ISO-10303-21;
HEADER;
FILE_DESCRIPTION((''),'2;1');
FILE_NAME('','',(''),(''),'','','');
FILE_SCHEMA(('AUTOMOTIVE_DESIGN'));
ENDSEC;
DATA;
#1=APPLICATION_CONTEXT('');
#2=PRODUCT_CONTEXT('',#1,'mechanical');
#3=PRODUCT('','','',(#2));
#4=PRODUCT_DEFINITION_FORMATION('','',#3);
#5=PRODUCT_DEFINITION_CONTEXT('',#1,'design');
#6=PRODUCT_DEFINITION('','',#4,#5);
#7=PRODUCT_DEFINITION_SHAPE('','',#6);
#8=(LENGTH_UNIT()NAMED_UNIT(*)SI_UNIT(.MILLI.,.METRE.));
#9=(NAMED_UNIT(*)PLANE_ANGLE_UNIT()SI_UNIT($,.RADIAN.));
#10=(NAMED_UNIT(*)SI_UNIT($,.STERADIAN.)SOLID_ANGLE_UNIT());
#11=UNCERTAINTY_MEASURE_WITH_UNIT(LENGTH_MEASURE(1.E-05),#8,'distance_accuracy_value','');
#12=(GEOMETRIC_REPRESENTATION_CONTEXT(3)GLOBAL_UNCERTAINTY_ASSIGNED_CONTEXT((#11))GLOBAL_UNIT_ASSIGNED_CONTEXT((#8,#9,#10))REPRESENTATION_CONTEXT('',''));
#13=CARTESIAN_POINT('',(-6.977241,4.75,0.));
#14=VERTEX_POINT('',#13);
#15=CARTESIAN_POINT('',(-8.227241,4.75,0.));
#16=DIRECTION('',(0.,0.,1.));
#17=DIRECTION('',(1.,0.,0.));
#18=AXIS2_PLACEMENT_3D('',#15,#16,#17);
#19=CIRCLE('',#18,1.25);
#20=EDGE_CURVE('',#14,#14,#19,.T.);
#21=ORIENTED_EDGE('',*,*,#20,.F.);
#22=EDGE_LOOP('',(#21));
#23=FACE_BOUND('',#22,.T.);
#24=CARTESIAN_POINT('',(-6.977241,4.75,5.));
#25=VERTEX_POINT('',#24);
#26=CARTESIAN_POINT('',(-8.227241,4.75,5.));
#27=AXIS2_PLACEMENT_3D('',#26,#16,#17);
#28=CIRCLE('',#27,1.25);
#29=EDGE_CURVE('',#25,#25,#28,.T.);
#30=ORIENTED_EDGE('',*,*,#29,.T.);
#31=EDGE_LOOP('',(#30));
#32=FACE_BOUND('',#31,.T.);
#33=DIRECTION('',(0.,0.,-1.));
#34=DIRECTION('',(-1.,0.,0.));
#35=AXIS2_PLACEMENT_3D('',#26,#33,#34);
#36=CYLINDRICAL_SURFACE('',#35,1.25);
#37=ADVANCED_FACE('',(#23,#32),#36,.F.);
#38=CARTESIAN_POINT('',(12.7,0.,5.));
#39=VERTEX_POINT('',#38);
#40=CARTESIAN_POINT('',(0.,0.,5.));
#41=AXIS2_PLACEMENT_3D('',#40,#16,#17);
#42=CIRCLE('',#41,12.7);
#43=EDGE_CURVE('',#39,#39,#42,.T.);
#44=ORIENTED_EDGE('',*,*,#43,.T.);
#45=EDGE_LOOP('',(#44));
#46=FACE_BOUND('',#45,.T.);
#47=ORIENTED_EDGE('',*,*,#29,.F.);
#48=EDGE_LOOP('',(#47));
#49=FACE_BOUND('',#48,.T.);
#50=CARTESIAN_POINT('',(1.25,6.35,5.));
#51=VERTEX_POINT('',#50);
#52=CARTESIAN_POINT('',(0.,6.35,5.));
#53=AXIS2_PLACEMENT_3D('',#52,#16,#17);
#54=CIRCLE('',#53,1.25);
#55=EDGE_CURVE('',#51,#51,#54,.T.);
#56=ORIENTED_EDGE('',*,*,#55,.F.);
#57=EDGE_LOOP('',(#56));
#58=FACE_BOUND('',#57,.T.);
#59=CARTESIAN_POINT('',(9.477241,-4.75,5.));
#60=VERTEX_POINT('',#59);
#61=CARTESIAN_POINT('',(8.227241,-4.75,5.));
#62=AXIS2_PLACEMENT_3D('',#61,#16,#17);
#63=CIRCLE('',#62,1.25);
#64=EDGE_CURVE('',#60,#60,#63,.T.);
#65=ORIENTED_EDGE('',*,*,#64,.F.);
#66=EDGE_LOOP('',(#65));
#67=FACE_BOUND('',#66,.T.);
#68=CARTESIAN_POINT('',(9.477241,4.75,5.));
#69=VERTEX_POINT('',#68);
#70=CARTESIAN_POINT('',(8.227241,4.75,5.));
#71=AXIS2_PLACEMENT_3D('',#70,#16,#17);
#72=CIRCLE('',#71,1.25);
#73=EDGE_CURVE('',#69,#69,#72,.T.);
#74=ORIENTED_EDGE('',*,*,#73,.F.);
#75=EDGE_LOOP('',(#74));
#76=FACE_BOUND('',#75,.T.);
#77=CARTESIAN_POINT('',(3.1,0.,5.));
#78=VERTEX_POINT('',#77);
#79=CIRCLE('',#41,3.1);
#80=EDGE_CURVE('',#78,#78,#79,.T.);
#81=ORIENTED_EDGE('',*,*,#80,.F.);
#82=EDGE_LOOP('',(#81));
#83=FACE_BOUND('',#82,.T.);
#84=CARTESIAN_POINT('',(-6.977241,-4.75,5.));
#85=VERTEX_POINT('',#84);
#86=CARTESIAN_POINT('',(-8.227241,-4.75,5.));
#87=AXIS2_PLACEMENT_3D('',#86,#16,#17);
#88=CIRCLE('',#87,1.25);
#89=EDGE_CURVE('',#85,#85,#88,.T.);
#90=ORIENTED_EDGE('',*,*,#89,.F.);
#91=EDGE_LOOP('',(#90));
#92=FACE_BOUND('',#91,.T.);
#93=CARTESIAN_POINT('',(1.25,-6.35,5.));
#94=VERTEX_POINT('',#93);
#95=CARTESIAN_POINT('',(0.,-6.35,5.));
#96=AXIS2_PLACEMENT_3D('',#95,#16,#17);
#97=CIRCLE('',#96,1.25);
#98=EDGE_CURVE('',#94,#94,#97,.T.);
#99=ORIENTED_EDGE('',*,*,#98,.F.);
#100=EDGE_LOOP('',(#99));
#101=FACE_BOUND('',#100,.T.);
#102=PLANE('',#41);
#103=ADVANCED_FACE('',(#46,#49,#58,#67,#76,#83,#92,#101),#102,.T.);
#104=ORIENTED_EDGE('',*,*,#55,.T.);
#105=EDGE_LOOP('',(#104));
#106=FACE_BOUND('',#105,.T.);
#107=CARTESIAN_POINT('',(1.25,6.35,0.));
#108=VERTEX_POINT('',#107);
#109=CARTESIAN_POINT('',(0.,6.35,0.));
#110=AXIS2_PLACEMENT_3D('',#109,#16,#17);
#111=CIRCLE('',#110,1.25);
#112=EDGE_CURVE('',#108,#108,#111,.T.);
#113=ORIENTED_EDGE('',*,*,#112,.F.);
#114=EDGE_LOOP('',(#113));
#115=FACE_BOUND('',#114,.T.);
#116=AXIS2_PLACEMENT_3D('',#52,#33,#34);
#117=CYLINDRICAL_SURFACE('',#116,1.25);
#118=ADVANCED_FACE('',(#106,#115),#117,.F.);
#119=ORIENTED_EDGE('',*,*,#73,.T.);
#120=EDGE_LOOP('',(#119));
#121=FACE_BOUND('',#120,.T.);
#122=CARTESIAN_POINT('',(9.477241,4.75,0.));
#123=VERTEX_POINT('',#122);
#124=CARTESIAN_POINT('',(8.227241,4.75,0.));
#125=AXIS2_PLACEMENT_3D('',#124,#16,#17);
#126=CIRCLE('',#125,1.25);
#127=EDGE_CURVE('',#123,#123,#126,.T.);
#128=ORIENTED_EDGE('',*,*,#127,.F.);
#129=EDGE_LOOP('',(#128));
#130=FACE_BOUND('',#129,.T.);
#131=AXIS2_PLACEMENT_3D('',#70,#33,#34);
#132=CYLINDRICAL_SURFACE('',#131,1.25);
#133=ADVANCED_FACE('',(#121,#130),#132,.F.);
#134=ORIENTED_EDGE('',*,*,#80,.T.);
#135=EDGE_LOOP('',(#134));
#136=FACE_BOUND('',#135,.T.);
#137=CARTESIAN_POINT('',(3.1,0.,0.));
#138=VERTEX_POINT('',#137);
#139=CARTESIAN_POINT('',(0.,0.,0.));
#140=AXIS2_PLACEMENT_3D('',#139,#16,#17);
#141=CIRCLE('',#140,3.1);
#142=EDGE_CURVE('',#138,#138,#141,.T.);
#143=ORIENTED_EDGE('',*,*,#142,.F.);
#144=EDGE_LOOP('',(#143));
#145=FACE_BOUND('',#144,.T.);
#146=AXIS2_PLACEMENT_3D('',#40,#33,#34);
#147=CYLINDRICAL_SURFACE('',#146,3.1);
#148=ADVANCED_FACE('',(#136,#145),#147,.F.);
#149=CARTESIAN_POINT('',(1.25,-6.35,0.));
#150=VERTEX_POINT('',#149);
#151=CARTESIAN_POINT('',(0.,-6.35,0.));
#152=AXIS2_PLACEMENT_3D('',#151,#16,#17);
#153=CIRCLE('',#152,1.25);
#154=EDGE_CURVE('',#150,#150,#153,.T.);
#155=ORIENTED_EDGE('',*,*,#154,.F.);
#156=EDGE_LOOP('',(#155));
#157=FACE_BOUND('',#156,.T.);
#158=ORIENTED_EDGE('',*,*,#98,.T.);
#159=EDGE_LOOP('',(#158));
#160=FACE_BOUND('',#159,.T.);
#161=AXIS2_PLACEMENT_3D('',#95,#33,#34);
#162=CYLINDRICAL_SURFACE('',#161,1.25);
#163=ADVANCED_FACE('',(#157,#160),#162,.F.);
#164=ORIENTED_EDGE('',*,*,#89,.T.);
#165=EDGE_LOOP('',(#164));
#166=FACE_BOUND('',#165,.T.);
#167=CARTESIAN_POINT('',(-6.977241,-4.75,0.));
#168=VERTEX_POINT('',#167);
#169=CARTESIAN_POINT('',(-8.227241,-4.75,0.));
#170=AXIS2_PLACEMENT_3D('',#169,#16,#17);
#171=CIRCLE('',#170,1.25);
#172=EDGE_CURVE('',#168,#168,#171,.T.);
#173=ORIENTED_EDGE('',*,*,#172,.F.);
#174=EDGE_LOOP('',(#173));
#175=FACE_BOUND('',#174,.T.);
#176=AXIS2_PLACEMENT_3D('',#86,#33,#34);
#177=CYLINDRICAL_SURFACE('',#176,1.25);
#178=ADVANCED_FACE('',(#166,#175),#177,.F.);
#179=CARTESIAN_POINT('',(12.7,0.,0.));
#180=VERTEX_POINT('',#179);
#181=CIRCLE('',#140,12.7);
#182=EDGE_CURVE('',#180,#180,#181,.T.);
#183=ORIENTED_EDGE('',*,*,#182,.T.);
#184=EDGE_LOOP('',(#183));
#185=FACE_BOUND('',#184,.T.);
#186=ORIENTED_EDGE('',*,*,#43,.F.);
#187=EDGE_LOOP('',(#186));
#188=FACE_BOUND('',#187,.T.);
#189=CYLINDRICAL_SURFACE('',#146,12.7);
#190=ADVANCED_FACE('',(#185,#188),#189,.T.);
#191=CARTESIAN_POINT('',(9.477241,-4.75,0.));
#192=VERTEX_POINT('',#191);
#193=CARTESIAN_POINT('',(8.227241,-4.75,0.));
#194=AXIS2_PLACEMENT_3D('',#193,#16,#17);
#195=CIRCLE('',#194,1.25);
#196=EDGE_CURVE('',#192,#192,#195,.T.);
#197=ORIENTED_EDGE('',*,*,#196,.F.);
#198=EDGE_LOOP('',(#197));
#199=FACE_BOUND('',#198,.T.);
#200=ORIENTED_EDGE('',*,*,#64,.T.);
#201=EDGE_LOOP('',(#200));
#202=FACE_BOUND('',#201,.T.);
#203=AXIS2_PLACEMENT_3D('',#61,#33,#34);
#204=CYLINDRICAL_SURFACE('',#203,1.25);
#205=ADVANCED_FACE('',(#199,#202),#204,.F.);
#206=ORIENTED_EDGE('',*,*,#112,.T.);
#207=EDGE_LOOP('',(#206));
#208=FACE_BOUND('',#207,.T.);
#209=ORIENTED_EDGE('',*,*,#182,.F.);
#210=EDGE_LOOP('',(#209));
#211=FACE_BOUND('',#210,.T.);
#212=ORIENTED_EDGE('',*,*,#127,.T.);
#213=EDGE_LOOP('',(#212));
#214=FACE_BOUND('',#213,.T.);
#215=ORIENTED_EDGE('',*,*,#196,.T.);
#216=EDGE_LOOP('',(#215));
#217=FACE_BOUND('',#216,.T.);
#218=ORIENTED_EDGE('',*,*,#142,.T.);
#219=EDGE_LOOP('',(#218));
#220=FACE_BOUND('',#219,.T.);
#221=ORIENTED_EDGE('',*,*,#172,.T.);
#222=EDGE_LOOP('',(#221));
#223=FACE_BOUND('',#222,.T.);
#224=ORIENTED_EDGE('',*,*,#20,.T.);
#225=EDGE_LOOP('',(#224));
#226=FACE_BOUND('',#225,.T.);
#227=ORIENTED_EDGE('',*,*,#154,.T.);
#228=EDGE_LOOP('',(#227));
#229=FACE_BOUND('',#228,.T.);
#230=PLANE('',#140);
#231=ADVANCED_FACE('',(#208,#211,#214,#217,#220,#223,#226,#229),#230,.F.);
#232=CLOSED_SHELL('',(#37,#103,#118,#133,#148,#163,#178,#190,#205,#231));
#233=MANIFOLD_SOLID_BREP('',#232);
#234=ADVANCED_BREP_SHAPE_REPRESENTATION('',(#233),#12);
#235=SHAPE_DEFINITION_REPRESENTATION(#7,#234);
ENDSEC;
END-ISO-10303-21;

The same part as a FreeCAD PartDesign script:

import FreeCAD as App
import Part
import Sketcher
Q = App.Units.Quantity

doc = App.newDocument("Part")
params = doc.addObject("Spreadsheet::Sheet", "Params")
for row, (alias, value) in enumerate([
    ("sketch1_diameter", "25.4 mm"),
    ("sketch1_diameter2", "2.5 mm"),
    ("sketch1_diameter3", "6.2 mm"),
    ("pad1_length", "5 mm"),
], start=1):
    params.set(f"A{row}", alias)
    params.set(f"B{row}", "=" + value)
    params.setAlias(f"B{row}", alias)

body = doc.addObject("PartDesign::Body", "Body")

# Sketch on XY plane
sketch1 = body.newObject("Sketcher::SketchObject", "Sketch")
sketch1.AttachmentSupport = (doc.getObject("XY_Plane"), [""])
sketch1.MapMode = "FlatFace"
sketch1.addGeometry(Part.Circle(App.Vector(0, 0, 0), App.Vector(0, 0, 1), 12.7), False)
sketch1.addGeometry(Part.Circle(App.Vector(-8.227241, -4.75, 0), App.Vector(0, 0, 1), 1.25), False)
sketch1.addGeometry(Part.Circle(App.Vector(0, -6.35, 0), App.Vector(0, 0, 1), 1.25), False)
sketch1.addGeometry(Part.Circle(App.Vector(8.227241, -4.75, 0), App.Vector(0, 0, 1), 1.25), False)
sketch1.addGeometry(Part.Circle(App.Vector(0, 0, 0), App.Vector(0, 0, 1), 3.1), False)
sketch1.addGeometry(Part.Circle(App.Vector(-8.227241, 4.75, 0), App.Vector(0, 0, 1), 1.25), False)
sketch1.addGeometry(Part.Circle(App.Vector(0, 6.35, 0), App.Vector(0, 0, 1), 1.25), False)
sketch1.addGeometry(Part.Circle(App.Vector(8.227241, 4.75, 0), App.Vector(0, 0, 1), 1.25), False)
sketch1.addConstraint(Sketcher.Constraint("Coincident", 0, 3, -1, 1))
sketch1.addConstraint(Sketcher.Constraint("Coincident", 4, 3, -1, 1))
sketch1.addConstraint(Sketcher.Constraint("Equal", 1, 2))
sketch1.addConstraint(Sketcher.Constraint("Equal", 2, 3))
sketch1.addConstraint(Sketcher.Constraint("Equal", 3, 5))
sketch1.addConstraint(Sketcher.Constraint("Equal", 5, 6))
sketch1.addConstraint(Sketcher.Constraint("Equal", 6, 7))
sketch1.addConstraint(Sketcher.Constraint("Symmetric", 3, 3, 5, 3, -1, 1))
sketch1.addConstraint(Sketcher.Constraint("Symmetric", 2, 3, 6, 3, -1, 1))
sketch1.addConstraint(Sketcher.Constraint("Symmetric", 1, 3, 7, 3, -1, 1))
sketch1.addConstraint(Sketcher.Constraint("Symmetric", 1, 3, 3, 3, -2))
sketch1.addConstraint(Sketcher.Constraint("PointOnObject", 2, 3, -2))
sketch1.addConstraint(Sketcher.Constraint("Diameter", 0, Q("25.4 mm")))
sketch1.addConstraint(Sketcher.Constraint("Diameter", 1, Q("2.5 mm")))
sketch1.addConstraint(Sketcher.Constraint("Diameter", 4, Q("6.2 mm")))
sketch1.addConstraint(Sketcher.Constraint("DistanceY", 2, 3, 1, 3, Q("1.6 mm")))
sketch1.addConstraint(Sketcher.Constraint("DistanceY", 1, 3, 5, 3, Q("9.5 mm")))
sketch1.addConstraint(Sketcher.Constraint("DistanceX", 1, 3, -1, 1, Q("8.227241 mm")))
sketch1.setExpression("Constraints[12]", "Params.sketch1_diameter")
sketch1.setExpression("Constraints[13]", "Params.sketch1_diameter2")
sketch1.setExpression("Constraints[14]", "Params.sketch1_diameter3")
pad1 = body.newObject("PartDesign::Pad", "Pad")
pad1.Profile = sketch1
pad1.setExpression("Length", "Params.pad1_length")

doc.recompute()
